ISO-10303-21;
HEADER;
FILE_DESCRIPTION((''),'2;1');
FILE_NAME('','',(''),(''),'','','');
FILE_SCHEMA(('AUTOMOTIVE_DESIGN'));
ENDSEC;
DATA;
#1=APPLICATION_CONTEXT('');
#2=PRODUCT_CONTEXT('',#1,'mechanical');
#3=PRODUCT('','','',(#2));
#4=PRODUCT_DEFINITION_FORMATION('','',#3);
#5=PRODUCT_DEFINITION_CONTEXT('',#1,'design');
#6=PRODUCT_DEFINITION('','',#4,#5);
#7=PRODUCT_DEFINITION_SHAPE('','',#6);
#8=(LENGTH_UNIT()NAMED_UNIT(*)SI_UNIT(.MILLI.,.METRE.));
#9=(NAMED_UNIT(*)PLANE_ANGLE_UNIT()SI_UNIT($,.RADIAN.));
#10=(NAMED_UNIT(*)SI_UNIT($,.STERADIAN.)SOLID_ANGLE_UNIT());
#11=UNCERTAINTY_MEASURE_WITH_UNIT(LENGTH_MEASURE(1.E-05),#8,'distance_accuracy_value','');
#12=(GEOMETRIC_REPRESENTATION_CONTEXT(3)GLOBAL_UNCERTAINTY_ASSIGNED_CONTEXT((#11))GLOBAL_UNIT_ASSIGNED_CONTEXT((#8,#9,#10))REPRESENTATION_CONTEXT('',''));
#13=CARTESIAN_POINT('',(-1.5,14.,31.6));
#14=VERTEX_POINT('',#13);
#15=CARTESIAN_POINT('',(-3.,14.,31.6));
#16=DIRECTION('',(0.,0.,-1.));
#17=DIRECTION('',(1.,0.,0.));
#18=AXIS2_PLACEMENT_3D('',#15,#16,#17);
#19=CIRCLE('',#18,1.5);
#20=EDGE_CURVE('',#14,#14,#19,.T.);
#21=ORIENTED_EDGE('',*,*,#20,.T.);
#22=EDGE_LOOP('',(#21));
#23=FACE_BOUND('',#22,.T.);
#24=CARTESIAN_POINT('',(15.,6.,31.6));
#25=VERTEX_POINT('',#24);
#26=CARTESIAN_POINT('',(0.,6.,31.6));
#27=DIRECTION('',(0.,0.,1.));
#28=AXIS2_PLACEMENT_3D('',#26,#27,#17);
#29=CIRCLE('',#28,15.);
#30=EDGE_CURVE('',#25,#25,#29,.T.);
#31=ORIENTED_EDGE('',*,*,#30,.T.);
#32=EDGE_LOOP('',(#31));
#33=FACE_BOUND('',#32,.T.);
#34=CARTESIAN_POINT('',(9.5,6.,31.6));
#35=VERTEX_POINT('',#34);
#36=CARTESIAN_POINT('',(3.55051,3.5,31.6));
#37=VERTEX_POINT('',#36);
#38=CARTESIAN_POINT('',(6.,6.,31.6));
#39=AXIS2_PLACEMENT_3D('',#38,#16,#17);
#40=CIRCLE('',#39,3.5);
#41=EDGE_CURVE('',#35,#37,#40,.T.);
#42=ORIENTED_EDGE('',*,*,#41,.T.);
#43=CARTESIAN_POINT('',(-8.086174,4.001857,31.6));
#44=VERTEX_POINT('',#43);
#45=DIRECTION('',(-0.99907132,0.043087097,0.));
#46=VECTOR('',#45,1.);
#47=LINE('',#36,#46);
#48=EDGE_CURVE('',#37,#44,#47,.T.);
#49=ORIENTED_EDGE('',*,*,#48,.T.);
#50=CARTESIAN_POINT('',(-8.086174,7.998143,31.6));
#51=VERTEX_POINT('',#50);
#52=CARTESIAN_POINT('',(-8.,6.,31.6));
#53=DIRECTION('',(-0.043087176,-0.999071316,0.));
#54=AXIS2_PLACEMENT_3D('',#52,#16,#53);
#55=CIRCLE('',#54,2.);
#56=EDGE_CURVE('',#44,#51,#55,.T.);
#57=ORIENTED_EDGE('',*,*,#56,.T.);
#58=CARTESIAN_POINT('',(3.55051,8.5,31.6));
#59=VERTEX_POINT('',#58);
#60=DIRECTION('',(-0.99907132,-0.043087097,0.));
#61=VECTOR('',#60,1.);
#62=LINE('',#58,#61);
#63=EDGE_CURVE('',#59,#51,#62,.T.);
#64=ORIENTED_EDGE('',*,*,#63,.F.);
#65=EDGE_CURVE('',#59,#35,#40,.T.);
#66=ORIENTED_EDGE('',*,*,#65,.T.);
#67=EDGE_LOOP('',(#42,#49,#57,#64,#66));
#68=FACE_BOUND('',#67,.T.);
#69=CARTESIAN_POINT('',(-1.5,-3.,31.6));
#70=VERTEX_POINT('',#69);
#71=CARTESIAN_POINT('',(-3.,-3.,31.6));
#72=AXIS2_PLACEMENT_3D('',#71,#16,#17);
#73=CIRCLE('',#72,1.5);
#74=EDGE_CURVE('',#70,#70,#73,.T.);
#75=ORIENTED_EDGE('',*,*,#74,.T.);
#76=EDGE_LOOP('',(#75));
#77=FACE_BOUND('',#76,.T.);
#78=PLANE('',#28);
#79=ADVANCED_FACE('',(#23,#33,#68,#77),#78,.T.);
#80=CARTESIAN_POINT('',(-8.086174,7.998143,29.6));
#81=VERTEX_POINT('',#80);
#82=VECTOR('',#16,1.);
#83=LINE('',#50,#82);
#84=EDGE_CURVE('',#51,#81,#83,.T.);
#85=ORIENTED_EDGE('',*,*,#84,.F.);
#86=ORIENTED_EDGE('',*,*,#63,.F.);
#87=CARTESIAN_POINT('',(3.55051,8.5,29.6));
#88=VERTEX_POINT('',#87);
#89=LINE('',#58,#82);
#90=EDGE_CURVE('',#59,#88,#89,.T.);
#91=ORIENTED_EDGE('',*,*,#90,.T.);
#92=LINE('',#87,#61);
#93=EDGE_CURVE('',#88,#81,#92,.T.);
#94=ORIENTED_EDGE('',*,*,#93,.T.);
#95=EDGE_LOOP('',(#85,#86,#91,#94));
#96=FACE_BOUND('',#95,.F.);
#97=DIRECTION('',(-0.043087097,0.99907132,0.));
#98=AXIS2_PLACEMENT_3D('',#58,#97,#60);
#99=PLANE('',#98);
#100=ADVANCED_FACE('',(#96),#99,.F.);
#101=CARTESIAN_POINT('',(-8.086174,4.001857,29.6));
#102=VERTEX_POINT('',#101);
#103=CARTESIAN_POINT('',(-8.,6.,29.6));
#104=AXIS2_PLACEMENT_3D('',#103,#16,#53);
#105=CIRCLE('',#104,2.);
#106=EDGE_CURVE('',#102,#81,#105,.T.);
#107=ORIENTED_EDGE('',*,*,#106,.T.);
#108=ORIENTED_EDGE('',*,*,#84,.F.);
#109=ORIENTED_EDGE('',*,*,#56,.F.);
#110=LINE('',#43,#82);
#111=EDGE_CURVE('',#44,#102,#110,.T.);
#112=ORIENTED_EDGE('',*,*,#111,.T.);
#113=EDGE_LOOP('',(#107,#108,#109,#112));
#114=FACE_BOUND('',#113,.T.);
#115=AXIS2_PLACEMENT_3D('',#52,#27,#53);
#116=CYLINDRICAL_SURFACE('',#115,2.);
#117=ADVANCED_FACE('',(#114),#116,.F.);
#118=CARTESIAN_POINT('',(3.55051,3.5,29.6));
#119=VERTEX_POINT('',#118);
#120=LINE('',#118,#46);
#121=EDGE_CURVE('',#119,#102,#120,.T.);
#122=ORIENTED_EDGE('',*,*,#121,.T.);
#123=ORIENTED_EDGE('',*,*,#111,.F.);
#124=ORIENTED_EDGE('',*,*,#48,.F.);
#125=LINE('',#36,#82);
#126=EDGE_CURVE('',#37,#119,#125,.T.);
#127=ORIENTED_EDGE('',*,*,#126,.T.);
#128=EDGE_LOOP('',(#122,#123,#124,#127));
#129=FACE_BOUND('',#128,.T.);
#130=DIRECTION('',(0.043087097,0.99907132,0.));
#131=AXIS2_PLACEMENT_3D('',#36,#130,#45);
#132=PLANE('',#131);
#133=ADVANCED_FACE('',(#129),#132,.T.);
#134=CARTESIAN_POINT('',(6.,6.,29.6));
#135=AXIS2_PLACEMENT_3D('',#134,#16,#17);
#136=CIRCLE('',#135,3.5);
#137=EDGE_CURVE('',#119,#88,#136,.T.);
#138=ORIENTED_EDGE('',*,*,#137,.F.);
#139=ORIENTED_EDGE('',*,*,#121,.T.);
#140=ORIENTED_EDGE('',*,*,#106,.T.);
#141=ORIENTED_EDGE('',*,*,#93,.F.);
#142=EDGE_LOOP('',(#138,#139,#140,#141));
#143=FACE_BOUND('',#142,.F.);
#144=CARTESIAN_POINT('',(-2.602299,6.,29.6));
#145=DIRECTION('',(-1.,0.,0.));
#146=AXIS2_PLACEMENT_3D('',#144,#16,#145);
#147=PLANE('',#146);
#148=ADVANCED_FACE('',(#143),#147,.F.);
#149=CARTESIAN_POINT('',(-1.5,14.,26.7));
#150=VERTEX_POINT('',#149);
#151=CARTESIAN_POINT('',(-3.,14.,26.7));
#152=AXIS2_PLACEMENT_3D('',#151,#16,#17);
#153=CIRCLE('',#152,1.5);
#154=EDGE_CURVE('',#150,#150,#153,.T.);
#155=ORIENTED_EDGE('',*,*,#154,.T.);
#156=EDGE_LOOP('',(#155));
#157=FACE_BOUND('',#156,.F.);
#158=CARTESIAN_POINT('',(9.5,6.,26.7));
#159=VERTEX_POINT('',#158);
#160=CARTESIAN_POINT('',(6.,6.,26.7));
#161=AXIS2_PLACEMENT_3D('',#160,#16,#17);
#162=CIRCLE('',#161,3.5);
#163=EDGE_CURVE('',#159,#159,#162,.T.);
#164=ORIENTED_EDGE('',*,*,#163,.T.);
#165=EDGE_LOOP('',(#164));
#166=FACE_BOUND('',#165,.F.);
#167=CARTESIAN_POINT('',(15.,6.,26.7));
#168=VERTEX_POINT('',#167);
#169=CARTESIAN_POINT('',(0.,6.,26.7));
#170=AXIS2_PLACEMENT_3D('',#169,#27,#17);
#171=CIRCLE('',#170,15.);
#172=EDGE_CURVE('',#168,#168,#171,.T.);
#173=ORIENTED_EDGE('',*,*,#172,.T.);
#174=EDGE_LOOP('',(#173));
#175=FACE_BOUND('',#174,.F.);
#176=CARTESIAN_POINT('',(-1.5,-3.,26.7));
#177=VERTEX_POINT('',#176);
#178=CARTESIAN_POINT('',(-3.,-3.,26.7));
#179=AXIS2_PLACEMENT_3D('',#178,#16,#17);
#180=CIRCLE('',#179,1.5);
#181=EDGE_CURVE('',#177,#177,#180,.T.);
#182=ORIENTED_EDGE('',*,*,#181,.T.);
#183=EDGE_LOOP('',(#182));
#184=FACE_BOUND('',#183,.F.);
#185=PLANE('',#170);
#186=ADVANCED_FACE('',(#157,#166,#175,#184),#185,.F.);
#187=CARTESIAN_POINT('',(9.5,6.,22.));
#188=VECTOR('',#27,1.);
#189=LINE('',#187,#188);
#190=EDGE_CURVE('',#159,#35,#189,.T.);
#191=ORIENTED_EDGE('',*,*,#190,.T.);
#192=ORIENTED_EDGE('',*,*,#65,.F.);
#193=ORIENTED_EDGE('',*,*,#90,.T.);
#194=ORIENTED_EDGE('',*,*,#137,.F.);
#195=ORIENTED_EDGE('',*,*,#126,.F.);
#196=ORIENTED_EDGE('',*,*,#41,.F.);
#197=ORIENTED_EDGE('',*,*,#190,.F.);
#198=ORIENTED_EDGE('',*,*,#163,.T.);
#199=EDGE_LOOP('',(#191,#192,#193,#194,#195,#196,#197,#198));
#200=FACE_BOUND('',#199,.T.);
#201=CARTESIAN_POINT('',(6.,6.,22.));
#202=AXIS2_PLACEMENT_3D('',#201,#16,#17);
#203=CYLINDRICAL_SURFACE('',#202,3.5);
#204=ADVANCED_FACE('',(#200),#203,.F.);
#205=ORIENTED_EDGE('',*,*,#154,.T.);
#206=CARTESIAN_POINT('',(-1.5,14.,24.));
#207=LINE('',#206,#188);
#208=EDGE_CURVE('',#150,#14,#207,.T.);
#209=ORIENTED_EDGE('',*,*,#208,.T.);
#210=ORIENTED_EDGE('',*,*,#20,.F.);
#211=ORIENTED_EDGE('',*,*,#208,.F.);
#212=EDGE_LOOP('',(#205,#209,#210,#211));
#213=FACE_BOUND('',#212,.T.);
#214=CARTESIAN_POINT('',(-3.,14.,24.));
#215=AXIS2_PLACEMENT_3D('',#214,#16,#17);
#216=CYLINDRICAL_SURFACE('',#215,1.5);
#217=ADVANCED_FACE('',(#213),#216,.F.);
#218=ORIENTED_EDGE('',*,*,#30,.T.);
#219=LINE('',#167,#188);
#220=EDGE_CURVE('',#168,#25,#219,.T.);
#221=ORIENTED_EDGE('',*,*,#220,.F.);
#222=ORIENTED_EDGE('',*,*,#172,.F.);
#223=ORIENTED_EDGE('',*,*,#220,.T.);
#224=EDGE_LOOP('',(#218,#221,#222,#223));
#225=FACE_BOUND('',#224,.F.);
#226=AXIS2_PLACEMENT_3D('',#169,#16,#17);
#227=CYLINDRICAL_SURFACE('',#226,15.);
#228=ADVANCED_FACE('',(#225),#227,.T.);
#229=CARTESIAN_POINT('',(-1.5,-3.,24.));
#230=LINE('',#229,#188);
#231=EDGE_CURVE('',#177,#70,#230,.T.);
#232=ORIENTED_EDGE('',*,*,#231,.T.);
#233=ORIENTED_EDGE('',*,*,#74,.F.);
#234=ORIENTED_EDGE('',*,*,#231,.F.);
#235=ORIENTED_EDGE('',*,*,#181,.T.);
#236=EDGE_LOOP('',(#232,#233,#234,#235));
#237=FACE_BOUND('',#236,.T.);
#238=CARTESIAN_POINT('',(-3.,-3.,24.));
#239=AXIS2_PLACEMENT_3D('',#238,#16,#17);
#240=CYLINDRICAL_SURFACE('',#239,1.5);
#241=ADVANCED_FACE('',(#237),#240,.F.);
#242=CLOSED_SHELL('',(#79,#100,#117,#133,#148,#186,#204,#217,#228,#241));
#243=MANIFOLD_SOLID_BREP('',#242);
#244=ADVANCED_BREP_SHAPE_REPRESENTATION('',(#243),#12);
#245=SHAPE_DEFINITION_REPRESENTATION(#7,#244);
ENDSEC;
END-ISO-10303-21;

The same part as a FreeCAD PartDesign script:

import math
import FreeCAD as App
import Part
import Sketcher

V = App.Vector

doc = App.newDocument("Part")
body = doc.addObject("PartDesign::Body", "Body")

# Sketch on XY plane
sketch1 = body.newObject("Sketcher::SketchObject", "Sketch")
sketch1.AttachmentSupport = (doc.getObject("XY_Plane"), [""])
sketch1.MapMode = "FlatFace"
sketch1.AttachmentOffset = App.Placement(V(0, 0, 24), App.Rotation())
sketch1.addGeometry(Part.Circle(V(-3, 14, 0), V(0, 0, 1), 1.5), False)
sketch1.addConstraint(Sketcher.Constraint("Diameter", 0, 3.0))
sketch1.addConstraint(Sketcher.Constraint("DistanceX", 0, 3, -1, 1, 3.0))
sketch1.addConstraint(Sketcher.Constraint("DistanceY", -1, 1, 0, 3, 14.0))
pad1 = body.newObject("PartDesign::Pad", "Pad")
pad1.Profile = sketch1
pad1.Length = 10
body2 = doc.addObject("PartDesign::Body", "Body001")

# Sketch on XY plane
sketch2 = body2.newObject("Sketcher::SketchObject", "Sketch001")
sketch2.AttachmentSupport = (doc.getObject("XY_Plane001"), [""])
sketch2.MapMode = "FlatFace"
sketch2.AttachmentOffset = App.Placement(V(0, 0, 24), App.Rotation())
sketch2.addGeometry(Part.Circle(V(-3, -3, 0), V(0, 0, 1), 1.5), False)
sketch2.addConstraint(Sketcher.Constraint("Diameter", 0, 3.0))
sketch2.addConstraint(Sketcher.Constraint("DistanceX", 0, 3, -1, 1, 3.0))
sketch2.addConstraint(Sketcher.Constraint("DistanceY", 0, 3, -1, 1, 3.0))
pad2 = body2.newObject("PartDesign::Pad", "Pad001")
pad2.Profile = sketch2
pad2.Length = 10
body3 = doc.addObject("PartDesign::Body", "Body002")

# Sketch on XY plane
sketch3 = body3.newObject("Sketcher::SketchObject", "Sketch002")
sketch3.AttachmentSupport = (doc.getObject("XY_Plane002"), [""])
sketch3.MapMode = "FlatFace"
sketch3.AttachmentOffset = App.Placement(V(0, 0, 22), App.Rotation())
sketch3.addGeometry(Part.Circle(V(6, 6, 0), V(0, 0, 1), 3.5), False)
sketch3.addConstraint(Sketcher.Constraint("Diameter", 0, 7.0))
sketch3.addConstraint(Sketcher.Constraint("DistanceX", -1, 1, 0, 3, 6.0))
sketch3.addConstraint(Sketcher.Constraint("DistanceY", -1, 1, 0, 3, 6.0))
pad3 = body3.newObject("PartDesign::Pad", "Pad002")
pad3.Profile = sketch3
pad3.Length = 20
body4 = doc.addObject("PartDesign::Body", "Body003")

# Sketch on XY plane
sketch4 = body4.newObject("Sketcher::SketchObject", "Sketch003")
sketch4.AttachmentSupport = (doc.getObject("XY_Plane003"), [""])
sketch4.MapMode = "FlatFace"
sketch4.AttachmentOffset = App.Placement(V(0, 0, 31.6), App.Rotation())
sketch4.addGeometry(Part.ArcOfCircle(Part.Circle(V(-8, 6, 0), V(0, 0, 1), 2), math.radians(92), math.radians(268)), False)
sketch4.addGeometry(Part.LineSegment(V(-8.1, 8, 0), V(3.6, 8.5, 0)), False)
sketch4.addGeometry(Part.LineSegment(V(3.6, 8.5, 0), V(3.6, 3.5, 0)), False)
sketch4.addGeometry(Part.LineSegment(V(3.6, 3.5, 0), V(-8.1, 4, 0)), False)
sketch4.addConstraint(Sketcher.Constraint("Tangent", 0, 1, 1, 1))
sketch4.addConstraint(Sketcher.Constraint("Coincident", 1, 2, 2, 1))
sketch4.addConstraint(Sketcher.Constraint("Coincident", 2, 2, 3, 1))
sketch4.addConstraint(Sketcher.Constraint("Tangent", 3, 2, 0, 2))
sketch4.addConstraint(Sketcher.Constraint("Vertical", 2))
sketch4.addConstraint(Sketcher.Constraint("Vertical", 0, 1, 3, 2))
sketch4.addConstraint(Sketcher.Constraint("Radius", 0, 2.0))
sketch4.addConstraint(Sketcher.Constraint("DistanceY", 2, 2, 2, 1, 5.0))
sketch4.addConstraint(Sketcher.Constraint("DistanceX", 0, 3, -1, 1, 8.0))
sketch4.addConstraint(Sketcher.Constraint("DistanceY", -1, 1, 0, 3, 6.0))
sketch4.addConstraint(Sketcher.Constraint("Distance", 1, 11.647501))
pad4 = body4.newObject("PartDesign::Pad", "Pad003")
pad4.Profile = sketch4
pad4.Length = 2
pad4.Reversed = True
body5 = doc.addObject("PartDesign::Body", "Body004")

# Sketch on XY plane
sketch5 = body5.newObject("Sketcher::SketchObject", "Sketch004")
sketch5.AttachmentSupport = (doc.getObject("XY_Plane004"), [""])
sketch5.MapMode = "FlatFace"
sketch5.AttachmentOffset = App.Placement(V(0, 0, 26.7), App.Rotation())
sketch5.addGeometry(Part.Circle(V(0, 6, 0), V(0, 0, 1), 15), False)
sketch5.addConstraint(Sketcher.Constraint("PointOnObject", 0, 3, -2))
sketch5.addConstraint(Sketcher.Constraint("Diameter", 0, 30.0))
sketch5.addConstraint(Sketcher.Constraint("DistanceY", -1, 1, 0, 3, 6.0))
pad5 = body5.newObject("PartDesign::Pad", "Pad004")
pad5.Profile = sketch5
pad5.Length = 4.9
doc.recompute()

boolean = body5.newObject("PartDesign::Boolean", "Boolean")
boolean.Type = "Cut"
boolean.addObjects([body4])
doc.recompute()

boolean2 = body5.newObject("PartDesign::Boolean", "Boolean001")
boolean2.Type = "Cut"
boolean2.addObjects([body3])
doc.recompute()

boolean3 = body5.newObject("PartDesign::Boolean", "Boolean002")
boolean3.Type = "Cut"
boolean3.addObjects([body2])
doc.recompute()

boolean4 = body5.newObject("PartDesign::Boolean", "Boolean003")
boolean4.Type = "Cut"
boolean4.addObjects([body])

doc.recompute()
